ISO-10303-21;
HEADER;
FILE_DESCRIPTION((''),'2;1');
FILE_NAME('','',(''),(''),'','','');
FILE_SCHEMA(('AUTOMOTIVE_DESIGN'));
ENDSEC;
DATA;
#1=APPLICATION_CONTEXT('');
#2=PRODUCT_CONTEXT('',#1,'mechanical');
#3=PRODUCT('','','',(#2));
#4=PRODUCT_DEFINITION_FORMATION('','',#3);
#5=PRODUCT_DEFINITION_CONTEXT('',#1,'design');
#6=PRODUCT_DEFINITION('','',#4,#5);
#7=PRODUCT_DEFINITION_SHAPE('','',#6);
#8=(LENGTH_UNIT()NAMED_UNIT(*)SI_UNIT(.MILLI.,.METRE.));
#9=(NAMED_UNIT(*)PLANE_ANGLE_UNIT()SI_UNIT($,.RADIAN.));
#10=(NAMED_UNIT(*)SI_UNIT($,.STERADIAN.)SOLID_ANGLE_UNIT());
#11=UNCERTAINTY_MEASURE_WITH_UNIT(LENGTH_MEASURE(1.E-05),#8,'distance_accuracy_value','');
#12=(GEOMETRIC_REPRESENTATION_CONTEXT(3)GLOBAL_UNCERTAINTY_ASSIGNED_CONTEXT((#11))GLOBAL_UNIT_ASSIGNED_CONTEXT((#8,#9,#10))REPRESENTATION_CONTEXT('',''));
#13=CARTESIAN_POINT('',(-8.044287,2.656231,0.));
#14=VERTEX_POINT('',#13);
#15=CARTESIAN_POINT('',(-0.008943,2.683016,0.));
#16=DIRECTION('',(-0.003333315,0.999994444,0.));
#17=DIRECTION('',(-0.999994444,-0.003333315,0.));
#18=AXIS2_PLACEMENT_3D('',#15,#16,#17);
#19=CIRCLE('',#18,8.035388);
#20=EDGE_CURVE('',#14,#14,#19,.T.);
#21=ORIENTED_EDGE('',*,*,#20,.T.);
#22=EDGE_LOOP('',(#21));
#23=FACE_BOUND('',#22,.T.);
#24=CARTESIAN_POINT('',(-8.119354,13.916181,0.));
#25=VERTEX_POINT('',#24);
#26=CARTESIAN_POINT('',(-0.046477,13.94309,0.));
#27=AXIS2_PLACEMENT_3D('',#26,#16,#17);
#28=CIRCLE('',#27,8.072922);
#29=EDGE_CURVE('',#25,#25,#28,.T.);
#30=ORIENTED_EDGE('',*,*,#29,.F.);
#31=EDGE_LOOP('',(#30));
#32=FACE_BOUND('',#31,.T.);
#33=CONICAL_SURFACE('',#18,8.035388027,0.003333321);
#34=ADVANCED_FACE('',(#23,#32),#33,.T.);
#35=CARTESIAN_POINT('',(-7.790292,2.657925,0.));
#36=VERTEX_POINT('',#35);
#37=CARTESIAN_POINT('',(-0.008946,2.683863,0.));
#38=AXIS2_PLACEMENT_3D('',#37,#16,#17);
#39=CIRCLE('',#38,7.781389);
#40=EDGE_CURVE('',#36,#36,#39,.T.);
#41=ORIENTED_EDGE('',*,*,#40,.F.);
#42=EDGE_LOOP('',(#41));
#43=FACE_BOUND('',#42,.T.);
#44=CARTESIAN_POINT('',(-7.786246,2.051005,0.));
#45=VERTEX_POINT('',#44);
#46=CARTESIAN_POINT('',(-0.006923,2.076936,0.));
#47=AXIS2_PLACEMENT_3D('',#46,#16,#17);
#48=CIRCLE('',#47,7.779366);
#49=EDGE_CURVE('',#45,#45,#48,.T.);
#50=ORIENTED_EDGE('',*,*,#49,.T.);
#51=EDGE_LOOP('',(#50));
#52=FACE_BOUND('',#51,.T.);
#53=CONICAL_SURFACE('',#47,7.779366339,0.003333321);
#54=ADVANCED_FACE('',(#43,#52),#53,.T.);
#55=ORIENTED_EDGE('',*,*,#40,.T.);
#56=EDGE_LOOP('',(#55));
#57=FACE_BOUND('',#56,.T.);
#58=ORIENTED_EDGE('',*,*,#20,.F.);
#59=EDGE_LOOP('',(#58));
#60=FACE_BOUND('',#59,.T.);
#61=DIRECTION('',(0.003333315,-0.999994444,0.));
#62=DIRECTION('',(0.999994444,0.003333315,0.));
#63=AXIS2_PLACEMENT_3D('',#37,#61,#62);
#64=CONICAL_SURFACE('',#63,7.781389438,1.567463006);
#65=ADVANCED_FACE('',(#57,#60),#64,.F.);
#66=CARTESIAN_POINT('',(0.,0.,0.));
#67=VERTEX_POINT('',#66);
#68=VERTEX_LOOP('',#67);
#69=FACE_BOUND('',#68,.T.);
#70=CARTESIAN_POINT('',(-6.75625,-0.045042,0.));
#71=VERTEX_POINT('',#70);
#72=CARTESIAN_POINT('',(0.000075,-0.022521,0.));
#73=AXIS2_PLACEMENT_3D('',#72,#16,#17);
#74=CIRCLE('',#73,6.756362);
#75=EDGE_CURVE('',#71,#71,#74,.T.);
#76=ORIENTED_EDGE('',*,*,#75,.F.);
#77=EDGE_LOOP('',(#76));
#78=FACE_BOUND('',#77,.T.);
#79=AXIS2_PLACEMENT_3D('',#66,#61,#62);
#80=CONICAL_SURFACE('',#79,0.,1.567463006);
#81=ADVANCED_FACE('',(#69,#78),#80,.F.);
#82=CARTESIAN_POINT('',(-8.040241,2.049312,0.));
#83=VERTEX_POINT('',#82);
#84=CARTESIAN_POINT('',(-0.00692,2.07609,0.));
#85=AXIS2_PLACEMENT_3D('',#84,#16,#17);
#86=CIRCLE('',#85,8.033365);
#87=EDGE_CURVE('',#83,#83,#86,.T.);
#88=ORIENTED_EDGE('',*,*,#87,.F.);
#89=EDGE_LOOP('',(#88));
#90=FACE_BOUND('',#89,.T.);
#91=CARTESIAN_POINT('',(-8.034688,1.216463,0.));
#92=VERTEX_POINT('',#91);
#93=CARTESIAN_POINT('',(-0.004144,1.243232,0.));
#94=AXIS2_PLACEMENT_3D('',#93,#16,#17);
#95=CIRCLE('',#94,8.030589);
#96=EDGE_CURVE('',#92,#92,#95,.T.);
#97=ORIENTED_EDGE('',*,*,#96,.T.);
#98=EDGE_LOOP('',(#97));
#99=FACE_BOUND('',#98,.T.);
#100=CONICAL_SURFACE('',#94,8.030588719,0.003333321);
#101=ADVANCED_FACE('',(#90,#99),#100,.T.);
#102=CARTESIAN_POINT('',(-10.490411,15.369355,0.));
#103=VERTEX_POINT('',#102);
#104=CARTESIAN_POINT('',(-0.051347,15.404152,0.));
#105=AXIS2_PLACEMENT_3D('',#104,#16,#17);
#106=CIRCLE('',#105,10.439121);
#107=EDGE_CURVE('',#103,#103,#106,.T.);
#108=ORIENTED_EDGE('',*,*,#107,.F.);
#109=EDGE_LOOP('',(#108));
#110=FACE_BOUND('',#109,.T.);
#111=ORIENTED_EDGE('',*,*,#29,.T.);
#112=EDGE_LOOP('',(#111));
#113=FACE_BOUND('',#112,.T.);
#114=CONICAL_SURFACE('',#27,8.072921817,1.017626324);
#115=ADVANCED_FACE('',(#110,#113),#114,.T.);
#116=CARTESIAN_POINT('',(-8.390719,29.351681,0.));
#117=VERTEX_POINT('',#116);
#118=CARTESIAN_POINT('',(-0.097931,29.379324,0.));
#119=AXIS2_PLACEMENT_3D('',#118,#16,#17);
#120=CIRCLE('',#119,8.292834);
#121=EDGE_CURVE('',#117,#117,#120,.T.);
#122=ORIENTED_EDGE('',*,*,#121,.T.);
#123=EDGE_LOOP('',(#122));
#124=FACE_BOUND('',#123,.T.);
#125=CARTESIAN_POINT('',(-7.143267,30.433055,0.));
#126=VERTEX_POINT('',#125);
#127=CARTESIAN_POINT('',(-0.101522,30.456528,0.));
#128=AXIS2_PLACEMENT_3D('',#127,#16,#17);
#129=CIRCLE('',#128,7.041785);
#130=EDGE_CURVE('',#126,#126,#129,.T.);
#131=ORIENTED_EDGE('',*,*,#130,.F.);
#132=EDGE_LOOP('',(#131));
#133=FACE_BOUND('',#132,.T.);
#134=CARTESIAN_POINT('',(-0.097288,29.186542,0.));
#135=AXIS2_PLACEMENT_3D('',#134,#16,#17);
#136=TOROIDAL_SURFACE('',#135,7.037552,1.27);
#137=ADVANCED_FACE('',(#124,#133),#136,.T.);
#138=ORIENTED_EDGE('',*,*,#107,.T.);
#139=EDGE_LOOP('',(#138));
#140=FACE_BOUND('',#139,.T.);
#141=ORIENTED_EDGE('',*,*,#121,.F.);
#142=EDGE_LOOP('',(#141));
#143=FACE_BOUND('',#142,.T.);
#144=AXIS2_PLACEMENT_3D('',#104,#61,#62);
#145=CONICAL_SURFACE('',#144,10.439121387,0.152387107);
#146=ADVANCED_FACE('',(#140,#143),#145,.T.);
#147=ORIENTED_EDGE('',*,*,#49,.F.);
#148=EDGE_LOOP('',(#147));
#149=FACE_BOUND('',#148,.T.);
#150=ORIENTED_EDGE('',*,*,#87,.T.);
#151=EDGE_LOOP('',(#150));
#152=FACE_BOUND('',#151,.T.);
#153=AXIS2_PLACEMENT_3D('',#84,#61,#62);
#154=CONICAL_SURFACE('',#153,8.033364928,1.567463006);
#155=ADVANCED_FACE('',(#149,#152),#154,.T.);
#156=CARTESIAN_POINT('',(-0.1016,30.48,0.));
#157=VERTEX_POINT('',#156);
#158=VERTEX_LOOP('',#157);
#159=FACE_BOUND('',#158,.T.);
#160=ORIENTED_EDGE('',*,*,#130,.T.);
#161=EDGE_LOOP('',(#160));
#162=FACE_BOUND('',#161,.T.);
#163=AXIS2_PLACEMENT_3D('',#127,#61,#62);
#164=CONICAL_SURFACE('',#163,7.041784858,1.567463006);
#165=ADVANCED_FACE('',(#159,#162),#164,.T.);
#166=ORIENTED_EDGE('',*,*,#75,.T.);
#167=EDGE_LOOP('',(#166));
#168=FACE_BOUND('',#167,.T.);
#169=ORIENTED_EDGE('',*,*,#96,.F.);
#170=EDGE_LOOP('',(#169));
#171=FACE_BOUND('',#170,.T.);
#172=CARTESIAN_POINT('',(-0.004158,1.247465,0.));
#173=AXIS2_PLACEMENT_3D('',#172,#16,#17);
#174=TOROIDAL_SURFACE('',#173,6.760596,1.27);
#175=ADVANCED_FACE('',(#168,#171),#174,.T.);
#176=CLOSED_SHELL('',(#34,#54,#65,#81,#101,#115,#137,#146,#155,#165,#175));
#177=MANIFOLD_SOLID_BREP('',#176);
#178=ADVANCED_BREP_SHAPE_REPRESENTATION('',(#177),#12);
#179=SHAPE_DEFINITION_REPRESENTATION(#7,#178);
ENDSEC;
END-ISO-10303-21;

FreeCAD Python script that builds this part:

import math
import FreeCAD as App
import Part
import Sketcher
Q = App.Units.Quantity

doc = App.newDocument("Part")
body = doc.addObject("PartDesign::Body", "Body")

# Sketch on XY plane
sketch1 = body.newObject("Sketcher::SketchObject", "Sketch")
sketch1.AttachmentSupport = (doc.getObject("XY_Plane"), [""])
sketch1.MapMode = "FlatFace"
sketch1.addGeometry(Part.LineSegment(App.Vector(0, 0, 0), App.Vector(6.76, 0, 0)), False)
sketch1.addGeometry(Part.ArcOfCircle(Part.Circle(App.Vector(6.76, 1.27, 0), App.Vector(0, 0, 1), 1.27), math.radians(-90), math.radians(0)), False)
sketch1.addGeometry(Part.LineSegment(App.Vector(8.03, 1.27, 0), App.Vector(8.03, 2.1, 0)), False)
sketch1.addGeometry(Part.LineSegment(App.Vector(8.03, 2.1, 0), App.Vector(7.77, 2.1, 0)), False)
sketch1.addGeometry(Part.LineSegment(App.Vector(7.77, 2.1, 0), App.Vector(7.77, 2.71, 0)), False)
sketch1.addGeometry(Part.LineSegment(App.Vector(7.77, 2.71, 0), App.Vector(8.03, 2.71, 0)), False)
sketch1.addGeometry(Part.LineSegment(App.Vector(8.03, 2.71, 0), App.Vector(8.03, 13.97, 0)), False)
sketch1.addGeometry(Part.LineSegment(App.Vector(8.03, 13.97, 0), App.Vector(10.39, 15.44, 0)), False)
sketch1.addGeometry(Part.LineSegment(App.Vector(10.39, 15.44, 0), App.Vector(8.19, 29.41, 0)), False)
sketch1.addGeometry(Part.ArcOfCircle(Part.Circle(App.Vector(6.94, 29.21, 0), App.Vector(0, 0, 1), 1.27), math.radians(9), math.radians(90)), False)
sketch1.addGeometry(Part.LineSegment(App.Vector(6.94, 30.48, 0), App.Vector(-0.1, 30.48, 0)), False)
sketch1.addGeometry(Part.LineSegment(App.Vector(-0.1, 30.48, 0), App.Vector(0, 0, 0)), False)
sketch1.addGeometry(Part.LineSegment(App.Vector(-0.1, 30.48, 0), App.Vector(0, -0.02, 0)), True)  # axis
sketch1.addConstraint(Sketcher.Constraint("Tangent", 0, 2, 1, 1))
sketch1.addConstraint(Sketcher.Constraint("Tangent", 1, 2, 2, 1))
sketch1.addConstraint(Sketcher.Constraint("Coincident", 2, 2, 3, 1))
sketch1.addConstraint(Sketcher.Constraint("Coincident", 3, 2, 4, 1))
sketch1.addConstraint(Sketcher.Constraint("Coincident", 4, 2, 5, 1))
sketch1.addConstraint(Sketcher.Constraint("Coincident", 5, 2, 6, 1))
sketch1.addConstraint(Sketcher.Constraint("Coincident", 6, 2, 7, 1))
sketch1.addConstraint(Sketcher.Constraint("Coincident", 7, 2, 8, 1))
sketch1.addConstraint(Sketcher.Constraint("Tangent", 8, 2, 9, 1))
sketch1.addConstraint(Sketcher.Constraint("Tangent", 9, 2, 10, 1))
sketch1.addConstraint(Sketcher.Constraint("Coincident", 10, 2, 11, 1))
sketch1.addConstraint(Sketcher.Constraint("Coincident", 11, 2, 0, 1))
sketch1.addConstraint(Sketcher.Constraint("Horizontal", 0))
sketch1.addConstraint(Sketcher.Constraint("Vertical", 2))
sketch1.addConstraint(Sketcher.Constraint("Horizontal", 3))
sketch1.addConstraint(Sketcher.Constraint("Vertical", 4))
sketch1.addConstraint(Sketcher.Constraint("Horizontal", 5))
sketch1.addConstraint(Sketcher.Constraint("Vertical", 6))
sketch1.addConstraint(Sketcher.Constraint("Horizontal", 10))
sketch1.addConstraint(Sketcher.Constraint("Coincident", 11, 2, -1, 1))
sketch1.addConstraint(Sketcher.Constraint("Coincident", 12, 1, 10, 2))
sketch1.addConstraint(Sketcher.Constraint("Equal", 1, 9))
sketch1.addConstraint(Sketcher.Constraint("Parallel", 11, 12))
sketch1.addConstraint(Sketcher.Constraint("Vertical", 2, 2, 5, 2))
sketch1.addConstraint(Sketcher.Constraint("Radius", 1, Q("0.05 in")))
sketch1.addConstraint(Sketcher.Constraint("DistanceX", 3, 2, 3, 1, Q("0.01 in")))
sketch1.addConstraint(Sketcher.Constraint("DistanceY", -1, 1, 9, 2, Q("1.2 in")))
sketch1.addConstraint(Sketcher.Constraint("DistanceY", 1, 2, 6, 2, Q("0.5 in")))
sketch1.addConstraint(Sketcher.Constraint("DistanceX", 0, 1, 0, 2, Q("0.266 in")))
sketch1.addConstraint(Sketcher.Constraint("DistanceX", 10, 2, 6, 2, Q("0.32 in")))
sketch1.addConstraint(Sketcher.Constraint("DistanceY", 6, 1, 6, 2, Q("11.2602 mm")))
sketch1.addConstraint(Sketcher.Constraint("Distance", 8, Q("14.1391 mm")))
sketch1.addConstraint(Sketcher.Constraint("Distance", 7, Q("2.78094 mm")))
sketch1.addConstraint(Sketcher.Constraint("Distance", 12, Q("30.502691 mm")))
sketch1.addConstraint(Sketcher.Constraint("DistanceX", 10, 2, 10, 1, Q("7.041824 mm")))
sketch1.addConstraint(Sketcher.Constraint("DistanceY", 2, 1, 2, 2, Q("0.832867 mm")))
revolution = body.newObject("PartDesign::Revolution", "Revolution")
revolution.Profile = sketch1
revolution.ReferenceAxis = (sketch1, ["Axis0"])
revolution.Angle = 360

doc.recompute()
